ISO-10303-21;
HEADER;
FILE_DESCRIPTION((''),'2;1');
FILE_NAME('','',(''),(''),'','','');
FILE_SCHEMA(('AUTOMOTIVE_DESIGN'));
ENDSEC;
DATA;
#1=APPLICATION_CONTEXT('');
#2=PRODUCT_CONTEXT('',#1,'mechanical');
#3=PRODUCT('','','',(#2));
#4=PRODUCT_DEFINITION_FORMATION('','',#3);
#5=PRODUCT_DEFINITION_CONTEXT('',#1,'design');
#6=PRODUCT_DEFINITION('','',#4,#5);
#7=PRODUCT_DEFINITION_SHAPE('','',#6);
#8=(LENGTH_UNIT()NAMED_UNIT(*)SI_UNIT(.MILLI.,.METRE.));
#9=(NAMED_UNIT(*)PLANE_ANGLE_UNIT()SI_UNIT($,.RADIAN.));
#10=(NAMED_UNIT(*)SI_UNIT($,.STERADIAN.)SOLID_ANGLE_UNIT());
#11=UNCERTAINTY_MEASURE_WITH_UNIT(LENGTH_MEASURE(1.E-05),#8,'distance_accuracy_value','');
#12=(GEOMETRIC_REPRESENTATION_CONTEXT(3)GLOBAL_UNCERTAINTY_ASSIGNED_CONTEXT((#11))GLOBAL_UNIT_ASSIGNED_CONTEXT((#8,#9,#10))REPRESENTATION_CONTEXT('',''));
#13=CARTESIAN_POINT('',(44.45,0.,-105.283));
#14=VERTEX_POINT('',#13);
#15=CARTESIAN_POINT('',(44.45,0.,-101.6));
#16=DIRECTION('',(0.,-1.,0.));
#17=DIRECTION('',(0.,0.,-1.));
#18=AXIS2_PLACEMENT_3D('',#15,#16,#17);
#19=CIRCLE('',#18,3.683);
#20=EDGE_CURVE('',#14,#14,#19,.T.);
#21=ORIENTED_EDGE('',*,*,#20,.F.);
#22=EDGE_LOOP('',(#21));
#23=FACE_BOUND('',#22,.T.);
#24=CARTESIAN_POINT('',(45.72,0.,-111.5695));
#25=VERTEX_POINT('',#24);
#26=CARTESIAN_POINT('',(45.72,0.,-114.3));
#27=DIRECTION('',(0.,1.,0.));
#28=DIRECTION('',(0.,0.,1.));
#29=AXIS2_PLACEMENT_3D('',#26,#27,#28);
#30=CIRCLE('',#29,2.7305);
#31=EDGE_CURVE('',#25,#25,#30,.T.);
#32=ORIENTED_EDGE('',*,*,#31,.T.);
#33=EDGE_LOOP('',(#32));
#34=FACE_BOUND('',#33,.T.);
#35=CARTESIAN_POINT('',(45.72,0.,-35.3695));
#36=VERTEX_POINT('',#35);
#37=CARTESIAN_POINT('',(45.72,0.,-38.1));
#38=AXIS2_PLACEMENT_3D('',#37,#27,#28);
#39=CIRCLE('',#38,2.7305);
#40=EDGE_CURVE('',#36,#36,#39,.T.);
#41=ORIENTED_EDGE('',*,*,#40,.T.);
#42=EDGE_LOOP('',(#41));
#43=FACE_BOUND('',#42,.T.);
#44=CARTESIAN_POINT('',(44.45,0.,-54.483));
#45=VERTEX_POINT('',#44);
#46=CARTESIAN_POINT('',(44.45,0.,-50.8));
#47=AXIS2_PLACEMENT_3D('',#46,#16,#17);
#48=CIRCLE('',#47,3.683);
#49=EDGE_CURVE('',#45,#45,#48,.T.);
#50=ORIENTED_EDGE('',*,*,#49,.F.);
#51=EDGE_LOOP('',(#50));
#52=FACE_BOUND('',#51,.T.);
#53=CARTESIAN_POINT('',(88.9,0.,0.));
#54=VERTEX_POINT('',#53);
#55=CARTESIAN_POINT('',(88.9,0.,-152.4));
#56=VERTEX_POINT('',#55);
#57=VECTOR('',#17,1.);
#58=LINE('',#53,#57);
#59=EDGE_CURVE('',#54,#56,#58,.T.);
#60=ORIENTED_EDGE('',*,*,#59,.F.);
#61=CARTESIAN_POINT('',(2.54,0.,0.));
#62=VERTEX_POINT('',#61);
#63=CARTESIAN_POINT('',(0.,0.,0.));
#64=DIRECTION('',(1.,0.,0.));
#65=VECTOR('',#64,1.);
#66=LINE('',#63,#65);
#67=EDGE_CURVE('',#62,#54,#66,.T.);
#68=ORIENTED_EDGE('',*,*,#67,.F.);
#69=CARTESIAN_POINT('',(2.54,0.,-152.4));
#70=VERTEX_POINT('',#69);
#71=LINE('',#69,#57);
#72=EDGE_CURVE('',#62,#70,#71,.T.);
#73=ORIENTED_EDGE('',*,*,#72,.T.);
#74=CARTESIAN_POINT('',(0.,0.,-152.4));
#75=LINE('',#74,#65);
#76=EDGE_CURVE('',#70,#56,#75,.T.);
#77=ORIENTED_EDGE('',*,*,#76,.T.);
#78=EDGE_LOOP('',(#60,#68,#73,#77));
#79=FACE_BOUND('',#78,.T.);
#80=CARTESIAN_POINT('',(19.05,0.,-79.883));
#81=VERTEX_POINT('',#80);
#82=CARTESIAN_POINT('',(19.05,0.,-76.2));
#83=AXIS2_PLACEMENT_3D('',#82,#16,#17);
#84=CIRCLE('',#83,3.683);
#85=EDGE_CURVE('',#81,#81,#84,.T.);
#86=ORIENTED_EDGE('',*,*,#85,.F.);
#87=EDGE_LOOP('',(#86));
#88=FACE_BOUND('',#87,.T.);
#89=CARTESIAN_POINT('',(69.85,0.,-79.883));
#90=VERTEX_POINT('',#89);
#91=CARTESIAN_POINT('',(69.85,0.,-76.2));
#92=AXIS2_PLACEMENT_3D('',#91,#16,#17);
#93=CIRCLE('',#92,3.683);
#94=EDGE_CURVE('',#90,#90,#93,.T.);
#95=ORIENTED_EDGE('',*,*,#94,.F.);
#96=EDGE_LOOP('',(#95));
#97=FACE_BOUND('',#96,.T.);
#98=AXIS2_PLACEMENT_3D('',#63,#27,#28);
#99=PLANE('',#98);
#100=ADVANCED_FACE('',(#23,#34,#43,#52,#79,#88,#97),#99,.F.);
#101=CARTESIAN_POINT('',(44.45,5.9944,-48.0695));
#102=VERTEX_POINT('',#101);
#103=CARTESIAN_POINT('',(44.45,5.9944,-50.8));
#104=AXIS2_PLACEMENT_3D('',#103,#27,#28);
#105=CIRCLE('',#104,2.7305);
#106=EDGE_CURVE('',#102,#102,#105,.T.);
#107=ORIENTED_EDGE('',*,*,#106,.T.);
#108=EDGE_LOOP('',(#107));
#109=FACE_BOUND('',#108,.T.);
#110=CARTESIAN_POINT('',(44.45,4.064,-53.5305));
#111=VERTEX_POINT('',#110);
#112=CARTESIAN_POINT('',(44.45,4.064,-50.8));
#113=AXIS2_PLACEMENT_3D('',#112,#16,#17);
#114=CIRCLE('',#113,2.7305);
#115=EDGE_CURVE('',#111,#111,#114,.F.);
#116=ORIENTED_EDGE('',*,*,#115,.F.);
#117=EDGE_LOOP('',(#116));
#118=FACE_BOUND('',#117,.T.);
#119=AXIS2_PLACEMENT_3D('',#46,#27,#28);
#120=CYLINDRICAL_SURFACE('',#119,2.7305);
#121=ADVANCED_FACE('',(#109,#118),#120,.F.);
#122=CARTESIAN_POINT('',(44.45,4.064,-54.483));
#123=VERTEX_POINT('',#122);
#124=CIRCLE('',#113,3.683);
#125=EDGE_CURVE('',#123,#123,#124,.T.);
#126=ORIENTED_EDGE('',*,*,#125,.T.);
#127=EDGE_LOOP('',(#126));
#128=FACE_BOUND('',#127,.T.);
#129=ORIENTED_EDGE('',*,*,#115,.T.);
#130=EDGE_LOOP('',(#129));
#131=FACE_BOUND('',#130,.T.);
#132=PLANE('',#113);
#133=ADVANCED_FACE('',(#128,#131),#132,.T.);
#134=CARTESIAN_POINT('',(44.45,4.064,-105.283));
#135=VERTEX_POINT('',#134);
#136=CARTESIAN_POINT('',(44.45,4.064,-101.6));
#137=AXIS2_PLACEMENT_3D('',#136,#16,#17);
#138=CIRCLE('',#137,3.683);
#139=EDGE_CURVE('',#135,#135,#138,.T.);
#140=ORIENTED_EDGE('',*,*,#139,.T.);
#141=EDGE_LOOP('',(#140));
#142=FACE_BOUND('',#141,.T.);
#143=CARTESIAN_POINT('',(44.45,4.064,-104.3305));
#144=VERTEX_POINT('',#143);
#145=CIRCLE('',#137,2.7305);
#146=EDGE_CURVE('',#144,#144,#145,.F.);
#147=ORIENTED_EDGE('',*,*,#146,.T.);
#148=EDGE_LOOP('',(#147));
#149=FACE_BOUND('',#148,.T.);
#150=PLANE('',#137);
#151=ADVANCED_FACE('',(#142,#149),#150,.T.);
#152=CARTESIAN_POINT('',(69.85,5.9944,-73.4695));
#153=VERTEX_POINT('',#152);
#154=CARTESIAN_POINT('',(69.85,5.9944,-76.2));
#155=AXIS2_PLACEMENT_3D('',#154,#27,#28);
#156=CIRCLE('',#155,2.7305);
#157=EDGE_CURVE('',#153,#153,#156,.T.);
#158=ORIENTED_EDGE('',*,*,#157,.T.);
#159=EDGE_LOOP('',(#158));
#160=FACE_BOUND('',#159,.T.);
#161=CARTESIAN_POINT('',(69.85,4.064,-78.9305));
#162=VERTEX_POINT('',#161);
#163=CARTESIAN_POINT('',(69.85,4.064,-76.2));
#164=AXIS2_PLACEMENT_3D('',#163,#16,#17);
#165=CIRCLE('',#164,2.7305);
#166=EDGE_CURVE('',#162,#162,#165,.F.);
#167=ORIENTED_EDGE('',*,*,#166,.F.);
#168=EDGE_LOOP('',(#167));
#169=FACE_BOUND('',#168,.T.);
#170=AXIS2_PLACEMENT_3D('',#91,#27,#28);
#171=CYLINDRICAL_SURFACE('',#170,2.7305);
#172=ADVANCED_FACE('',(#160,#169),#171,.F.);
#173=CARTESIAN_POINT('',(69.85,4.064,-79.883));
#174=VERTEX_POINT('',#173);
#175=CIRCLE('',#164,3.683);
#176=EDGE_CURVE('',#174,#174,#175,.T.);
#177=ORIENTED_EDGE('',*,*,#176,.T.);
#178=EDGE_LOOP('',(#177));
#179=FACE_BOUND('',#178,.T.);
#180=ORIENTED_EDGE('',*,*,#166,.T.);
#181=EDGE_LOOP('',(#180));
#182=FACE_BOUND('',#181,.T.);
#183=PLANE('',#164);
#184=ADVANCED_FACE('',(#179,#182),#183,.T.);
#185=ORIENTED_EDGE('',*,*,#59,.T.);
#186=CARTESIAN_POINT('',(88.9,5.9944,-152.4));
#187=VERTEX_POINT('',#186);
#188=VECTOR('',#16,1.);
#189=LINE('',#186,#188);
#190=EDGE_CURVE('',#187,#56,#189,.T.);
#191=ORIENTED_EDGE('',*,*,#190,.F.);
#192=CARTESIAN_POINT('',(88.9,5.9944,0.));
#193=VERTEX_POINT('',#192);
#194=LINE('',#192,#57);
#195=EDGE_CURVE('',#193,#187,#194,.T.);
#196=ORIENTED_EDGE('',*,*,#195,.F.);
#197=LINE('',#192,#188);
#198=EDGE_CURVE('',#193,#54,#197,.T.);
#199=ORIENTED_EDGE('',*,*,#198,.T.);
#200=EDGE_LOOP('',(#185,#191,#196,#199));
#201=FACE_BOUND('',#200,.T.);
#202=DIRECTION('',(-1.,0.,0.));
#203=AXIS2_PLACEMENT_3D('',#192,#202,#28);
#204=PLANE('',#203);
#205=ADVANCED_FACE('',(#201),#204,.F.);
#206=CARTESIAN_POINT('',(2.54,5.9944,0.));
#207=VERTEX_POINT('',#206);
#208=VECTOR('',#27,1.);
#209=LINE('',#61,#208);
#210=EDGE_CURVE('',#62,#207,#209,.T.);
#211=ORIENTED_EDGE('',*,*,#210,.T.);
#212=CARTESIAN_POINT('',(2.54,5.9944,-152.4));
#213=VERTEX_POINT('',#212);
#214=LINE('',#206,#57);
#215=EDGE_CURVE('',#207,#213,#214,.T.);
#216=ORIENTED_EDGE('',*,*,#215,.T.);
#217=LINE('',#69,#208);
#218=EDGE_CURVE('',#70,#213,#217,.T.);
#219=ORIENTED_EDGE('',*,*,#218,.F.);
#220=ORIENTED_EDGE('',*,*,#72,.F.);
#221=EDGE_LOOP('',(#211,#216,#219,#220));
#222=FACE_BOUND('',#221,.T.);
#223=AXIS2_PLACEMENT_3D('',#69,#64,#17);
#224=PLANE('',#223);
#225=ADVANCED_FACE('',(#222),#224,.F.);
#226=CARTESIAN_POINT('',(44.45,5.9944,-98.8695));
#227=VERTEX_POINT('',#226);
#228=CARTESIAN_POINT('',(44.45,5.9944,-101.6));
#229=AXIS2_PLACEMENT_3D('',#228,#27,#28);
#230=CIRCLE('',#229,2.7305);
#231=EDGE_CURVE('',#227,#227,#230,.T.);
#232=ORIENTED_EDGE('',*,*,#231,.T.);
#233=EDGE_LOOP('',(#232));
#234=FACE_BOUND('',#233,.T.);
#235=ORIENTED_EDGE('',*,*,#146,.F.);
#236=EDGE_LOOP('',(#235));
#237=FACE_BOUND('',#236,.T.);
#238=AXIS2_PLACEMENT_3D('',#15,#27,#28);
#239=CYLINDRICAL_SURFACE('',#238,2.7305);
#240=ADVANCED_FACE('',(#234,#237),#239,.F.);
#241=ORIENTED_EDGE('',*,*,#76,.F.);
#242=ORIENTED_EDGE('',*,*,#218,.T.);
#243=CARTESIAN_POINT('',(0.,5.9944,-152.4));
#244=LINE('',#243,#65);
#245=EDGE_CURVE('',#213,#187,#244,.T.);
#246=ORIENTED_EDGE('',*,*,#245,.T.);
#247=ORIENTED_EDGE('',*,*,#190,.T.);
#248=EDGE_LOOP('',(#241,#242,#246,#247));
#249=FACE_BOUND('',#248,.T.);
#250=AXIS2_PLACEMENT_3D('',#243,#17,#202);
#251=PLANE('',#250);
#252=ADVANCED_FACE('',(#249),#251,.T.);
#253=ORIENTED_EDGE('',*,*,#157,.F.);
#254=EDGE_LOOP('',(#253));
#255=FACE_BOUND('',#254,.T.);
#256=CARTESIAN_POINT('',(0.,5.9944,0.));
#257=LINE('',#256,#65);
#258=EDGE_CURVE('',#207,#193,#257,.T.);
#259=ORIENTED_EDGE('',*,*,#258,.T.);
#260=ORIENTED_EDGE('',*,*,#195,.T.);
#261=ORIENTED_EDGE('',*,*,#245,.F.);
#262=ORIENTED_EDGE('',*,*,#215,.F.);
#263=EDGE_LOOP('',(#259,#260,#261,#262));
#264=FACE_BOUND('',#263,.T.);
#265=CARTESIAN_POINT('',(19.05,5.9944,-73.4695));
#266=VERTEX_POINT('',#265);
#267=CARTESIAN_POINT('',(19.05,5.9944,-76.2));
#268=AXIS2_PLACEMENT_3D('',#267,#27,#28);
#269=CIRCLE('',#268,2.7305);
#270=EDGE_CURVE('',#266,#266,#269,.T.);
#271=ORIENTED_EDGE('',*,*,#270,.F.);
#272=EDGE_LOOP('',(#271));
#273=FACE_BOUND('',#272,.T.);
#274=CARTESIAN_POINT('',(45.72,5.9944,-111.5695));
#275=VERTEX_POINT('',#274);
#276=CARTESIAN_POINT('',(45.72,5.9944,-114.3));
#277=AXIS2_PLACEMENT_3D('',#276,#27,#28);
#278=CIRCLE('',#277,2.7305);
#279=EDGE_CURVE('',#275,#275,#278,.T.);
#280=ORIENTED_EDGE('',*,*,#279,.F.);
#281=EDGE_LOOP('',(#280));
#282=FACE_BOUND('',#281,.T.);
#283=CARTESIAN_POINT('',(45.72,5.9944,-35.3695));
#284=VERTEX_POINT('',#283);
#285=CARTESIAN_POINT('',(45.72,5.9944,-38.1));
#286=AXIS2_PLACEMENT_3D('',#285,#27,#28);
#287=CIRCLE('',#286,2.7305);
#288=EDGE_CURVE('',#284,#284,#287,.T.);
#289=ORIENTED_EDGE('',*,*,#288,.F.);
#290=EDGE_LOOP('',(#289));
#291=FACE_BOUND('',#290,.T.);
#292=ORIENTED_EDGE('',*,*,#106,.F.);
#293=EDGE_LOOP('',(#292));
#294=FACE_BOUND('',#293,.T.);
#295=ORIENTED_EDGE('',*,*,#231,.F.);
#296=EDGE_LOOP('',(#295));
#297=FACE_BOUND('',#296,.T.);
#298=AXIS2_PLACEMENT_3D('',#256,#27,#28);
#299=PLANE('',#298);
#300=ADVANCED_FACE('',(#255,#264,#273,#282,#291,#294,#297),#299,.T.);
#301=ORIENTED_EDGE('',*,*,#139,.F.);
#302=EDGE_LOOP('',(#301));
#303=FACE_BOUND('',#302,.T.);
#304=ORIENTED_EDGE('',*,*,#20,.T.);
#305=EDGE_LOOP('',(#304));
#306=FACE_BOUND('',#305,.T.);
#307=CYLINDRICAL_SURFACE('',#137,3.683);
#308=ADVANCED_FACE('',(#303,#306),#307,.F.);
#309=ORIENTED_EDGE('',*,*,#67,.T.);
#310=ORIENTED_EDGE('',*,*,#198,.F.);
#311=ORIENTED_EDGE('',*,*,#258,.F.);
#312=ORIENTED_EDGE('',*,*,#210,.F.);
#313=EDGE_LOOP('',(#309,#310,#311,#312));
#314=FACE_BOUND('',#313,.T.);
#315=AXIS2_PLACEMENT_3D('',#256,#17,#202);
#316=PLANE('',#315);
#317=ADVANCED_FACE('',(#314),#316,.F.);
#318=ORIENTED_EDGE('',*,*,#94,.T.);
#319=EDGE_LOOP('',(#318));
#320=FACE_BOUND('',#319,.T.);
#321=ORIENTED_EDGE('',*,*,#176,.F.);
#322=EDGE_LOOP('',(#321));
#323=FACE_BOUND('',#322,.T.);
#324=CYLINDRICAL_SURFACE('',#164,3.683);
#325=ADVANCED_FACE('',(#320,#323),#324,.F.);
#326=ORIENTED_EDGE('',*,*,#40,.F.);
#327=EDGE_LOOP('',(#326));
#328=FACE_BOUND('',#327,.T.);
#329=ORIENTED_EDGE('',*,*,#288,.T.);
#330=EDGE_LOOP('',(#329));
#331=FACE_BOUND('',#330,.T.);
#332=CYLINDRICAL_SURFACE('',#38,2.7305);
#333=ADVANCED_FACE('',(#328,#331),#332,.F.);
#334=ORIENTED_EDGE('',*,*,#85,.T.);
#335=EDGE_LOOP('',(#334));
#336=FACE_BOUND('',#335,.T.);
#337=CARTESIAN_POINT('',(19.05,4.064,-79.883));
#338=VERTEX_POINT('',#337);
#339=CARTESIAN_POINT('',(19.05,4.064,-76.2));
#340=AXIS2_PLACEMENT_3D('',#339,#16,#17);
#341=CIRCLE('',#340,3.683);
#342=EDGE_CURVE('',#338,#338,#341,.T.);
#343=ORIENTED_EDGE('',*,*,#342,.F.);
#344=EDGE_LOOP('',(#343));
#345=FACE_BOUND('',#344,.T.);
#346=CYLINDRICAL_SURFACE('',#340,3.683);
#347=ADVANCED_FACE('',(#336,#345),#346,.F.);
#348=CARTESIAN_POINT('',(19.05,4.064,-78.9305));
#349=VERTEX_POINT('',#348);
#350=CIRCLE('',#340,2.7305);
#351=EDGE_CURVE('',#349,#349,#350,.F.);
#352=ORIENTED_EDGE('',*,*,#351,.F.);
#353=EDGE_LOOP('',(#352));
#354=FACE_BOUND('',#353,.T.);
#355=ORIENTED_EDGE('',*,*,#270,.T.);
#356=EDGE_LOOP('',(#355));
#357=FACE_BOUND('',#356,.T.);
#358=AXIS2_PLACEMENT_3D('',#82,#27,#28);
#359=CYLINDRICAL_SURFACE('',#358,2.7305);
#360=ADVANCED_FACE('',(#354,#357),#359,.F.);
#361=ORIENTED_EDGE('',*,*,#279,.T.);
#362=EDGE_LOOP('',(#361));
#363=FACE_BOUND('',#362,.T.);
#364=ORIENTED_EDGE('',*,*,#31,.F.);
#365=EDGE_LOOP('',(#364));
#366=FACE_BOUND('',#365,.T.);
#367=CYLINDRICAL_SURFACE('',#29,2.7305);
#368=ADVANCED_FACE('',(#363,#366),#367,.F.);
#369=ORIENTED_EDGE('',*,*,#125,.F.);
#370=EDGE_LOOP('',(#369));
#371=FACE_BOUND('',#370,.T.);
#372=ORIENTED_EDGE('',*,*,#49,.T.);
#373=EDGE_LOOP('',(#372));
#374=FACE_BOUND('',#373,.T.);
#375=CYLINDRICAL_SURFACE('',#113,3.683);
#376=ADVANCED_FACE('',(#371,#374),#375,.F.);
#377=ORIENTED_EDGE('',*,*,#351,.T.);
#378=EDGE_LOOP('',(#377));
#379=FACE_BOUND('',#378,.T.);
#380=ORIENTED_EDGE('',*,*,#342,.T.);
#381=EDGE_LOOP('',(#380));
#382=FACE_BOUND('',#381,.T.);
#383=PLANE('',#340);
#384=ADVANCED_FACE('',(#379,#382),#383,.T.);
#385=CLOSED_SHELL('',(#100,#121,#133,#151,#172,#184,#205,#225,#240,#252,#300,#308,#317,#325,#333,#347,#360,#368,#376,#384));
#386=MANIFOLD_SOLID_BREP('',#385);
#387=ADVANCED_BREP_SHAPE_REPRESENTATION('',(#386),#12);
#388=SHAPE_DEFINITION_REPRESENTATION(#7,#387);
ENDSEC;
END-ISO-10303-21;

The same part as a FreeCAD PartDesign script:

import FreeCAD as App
import Part
import Sketcher
from FreeCAD import Vector
Q = App.Units.Quantity


def add_polygon(sketch, points):
    """Adds a closed chain of lines whose ends are joined by coincident constraints."""
    first, n = sketch.GeometryCount, len(points)
    for a, b in zip(points, points[1:] + points[:1]):
        sketch.addGeometry(Part.LineSegment(App.Vector(*a, 0), App.Vector(*b, 0)), False)
    for i in range(n):
        sketch.addConstraint(Sketcher.Constraint("Coincident", first + i, 2, first + (i + 1) % n, 1))

doc = App.newDocument("Part")
params = doc.addObject("Spreadsheet::Sheet", "Params")
for row, (alias, value) in enumerate([
    ("sketch1_height", "6 in"),
    ("sketch1_width", "3.5 in"),
    ("pad1_length", "0.236 in"),
    ("sketch2_diameter", "0.215 in"),
    ("sketch3_diameter", "0.215 in"),
    ("sketch4_height", "6 in"),
    ("sketch4_width", "0.1 in"),
    ("sketch5_diameter", "0.29 in"),
    ("pocket4_length", "0.16 in"),
], start=1):
    params.set(f"A{row}", alias)
    params.set(f"B{row}", "=" + value)
    params.setAlias(f"B{row}", alias)

body = doc.addObject("PartDesign::Body", "Body")

# Sketch on XZ plane
sketch1 = body.newObject("Sketcher::SketchObject", "Sketch")
sketch1.AttachmentSupport = (doc.getObject("XZ_Plane"), [""])
sketch1.MapMode = "FlatFace"
add_polygon(sketch1, [(0, -152), (0, 0), (89, 0), (89, -152)])  # lines 0-3
sketch1.addConstraint(Sketcher.Constraint("Vertical", 0))
sketch1.addConstraint(Sketcher.Constraint("Horizontal", 1))
sketch1.addConstraint(Sketcher.Constraint("Vertical", 2))
sketch1.addConstraint(Sketcher.Constraint("Horizontal", 3))
sketch1.addConstraint(Sketcher.Constraint("Coincident", 0, 2, -1, 1))
sketch1.addConstraint(Sketcher.Constraint("DistanceY", 0, 1, 0, 2, Q("6 in")))
sketch1.addConstraint(Sketcher.Constraint("DistanceX", 1, 1, 1, 2, Q("3.5 in")))
sketch1.setExpression("Constraints[9]", "Params.sketch1_height")
sketch1.setExpression("Constraints[10]", "Params.sketch1_width")
pad1 = body.newObject("PartDesign::Pad", "Pad")
pad1.Profile = sketch1
pad1.setExpression("Length", "Params.pad1_length")
pad1.Reversed = True

# Sketch on XZ plane
sketch2 = body.newObject("Sketcher::SketchObject", "Sketch001")
sketch2.AttachmentSupport = (doc.getObject("XZ_Plane"), [""])
sketch2.MapMode = "FlatFace"
sketch2.AttachmentOffset = App.Placement(Vector(0, 0, -0.236 * 25.4), App.Rotation())
sketch2.addGeometry(Part.Circle(Vector(45.7, -114.3, 0), Vector(0, 0, 1), 2.7), False)
sketch2.addGeometry(Part.Circle(Vector(45.7, -38.1, 0), Vector(0, 0, 1), 2.7), False)
sketch2.addConstraint(Sketcher.Constraint("Equal", 0, 1))
sketch2.addConstraint(Sketcher.Constraint("Vertical", 0, 3, 1, 3))
sketch2.addConstraint(Sketcher.Constraint("Diameter", 0, Q("0.215 in")))
sketch2.addConstraint(Sketcher.Constraint("DistanceY", 0, 3, 1, 3, Q("3 in")))
sketch2.addConstraint(Sketcher.Constraint("DistanceX", -1, 1, 0, 3, Q("1.8 in")))
sketch2.addConstraint(Sketcher.Constraint("DistanceY", 0, 3, -1, 1, Q("4.5 in")))
sketch2.setExpression("Constraints[2]", "Params.sketch2_diameter")
pocket1 = body.newObject("PartDesign::Pocket", "Pocket")
pocket1.Profile = sketch2
pocket1.Type = "ThroughAll"
pocket1.Midplane = True

# Sketch on XZ plane
sketch3 = body.newObject("Sketcher::SketchObject", "Sketch002")
sketch3.AttachmentSupport = (doc.getObject("XZ_Plane"), [""])
sketch3.MapMode = "FlatFace"
sketch3.AttachmentOffset = App.Placement(Vector(0, 0, -0.236 * 25.4), App.Rotation())
sketch3.addGeometry(Part.Circle(Vector(69.8, -76.2, 0), Vector(0, 0, 1), 2.7), False)
sketch3.addGeometry(Part.Circle(Vector(19.1, -76.2, 0), Vector(0, 0, 1), 2.7), False)
sketch3.addGeometry(Part.Circle(Vector(44.5, -101.6, 0), Vector(0, 0, 1), 2.7), False)
sketch3.addGeometry(Part.Circle(Vector(44.5, -50.8, 0), Vector(0, 0, 1), 2.7), False)
sketch3.addConstraint(Sketcher.Constraint("Equal", 0, 1))
sketch3.addConstraint(Sketcher.Constraint("Equal", 1, 2))
sketch3.addConstraint(Sketcher.Constraint("Equal", 2, 3))
sketch3.addConstraint(Sketcher.Constraint("Horizontal", 0, 3, 1, 3))
sketch3.addConstraint(Sketcher.Constraint("Vertical", 2, 3, 3, 3))
sketch3.addConstraint(Sketcher.Constraint("Diameter", 0, Q("0.215 in")))
sketch3.addConstraint(Sketcher.Constraint("DistanceY", 0, 3, -1, 1, Q("3 in")))
sketch3.addConstraint(Sketcher.Constraint("DistanceY", 2, 3, -1, 1, Q("4 in")))
sketch3.addConstraint(Sketcher.Constraint("DistanceY", 3, 3, -1, 1, Q("2 in")))
sketch3.addConstraint(Sketcher.Constraint("DistanceX", 1, 3, 0, 3, Q("2 in")))
sketch3.addConstraint(Sketcher.Constraint("DistanceX", 2, 3, 0, 3, Q("1 in")))
sketch3.addConstraint(Sketcher.Constraint("DistanceX", -1, 1, 0, 3, Q("2.75 in")))
sketch3.setExpression("Constraints[5]", "Params.sketch3_diameter")
pocket2 = body.newObject("PartDesign::Pocket", "Pocket001")
pocket2.Profile = sketch3
pocket2.Type = "ThroughAll"
pocket2.Midplane = True

# Sketch on XZ plane
sketch4 = body.newObject("Sketcher::SketchObject", "Sketch003")
sketch4.AttachmentSupport = (doc.getObject("XZ_Plane"), [""])
sketch4.MapMode = "FlatFace"
sketch4.AttachmentOffset = App.Placement(Vector(0, 0, -0.236 * 25.4), App.Rotation())
add_polygon(sketch4, [(0, -152.4), (0, 0), (2.5, 0), (2.5, -152.4)])  # lines 0-3
sketch4.addConstraint(Sketcher.Constraint("Vertical", 0))
sketch4.addConstraint(Sketcher.Constraint("Horizontal", 1))
sketch4.addConstraint(Sketcher.Constraint("Vertical", 2))
sketch4.addConstraint(Sketcher.Constraint("Horizontal", 3))
sketch4.addConstraint(Sketcher.Constraint("Coincident", 0, 2, -1, 1))
sketch4.addConstraint(Sketcher.Constraint("DistanceY", 0, 1, 0, 2, Q("6 in")))
sketch4.addConstraint(Sketcher.Constraint("DistanceX", 1, 1, 1, 2, Q("0.1 in")))
sketch4.setExpression("Constraints[9]", "Params.sketch4_height")
sketch4.setExpression("Constraints[10]", "Params.sketch4_width")
pocket3 = body.newObject("PartDesign::Pocket", "Pocket002")
pocket3.Profile = sketch4
pocket3.Type = "ThroughAll"
pocket3.Midplane = True

# Sketch on XZ plane
sketch5 = body.newObject("Sketcher::SketchObject", "Sketch004")
sketch5.AttachmentSupport = (doc.getObject("XZ_Plane"), [""])
sketch5.MapMode = "FlatFace"
sketch5.addGeometry(Part.Circle(Vector(19.1, -76.2, 0), Vector(0, 0, 1), 3.7), False)
sketch5.addGeometry(Part.Circle(Vector(44.5, -50.8, 0), Vector(0, 0, 1), 3.7), False)
sketch5.addGeometry(Part.Circle(Vector(69.8, -76.2, 0), Vector(0, 0, 1), 3.7), False)
sketch5.addGeometry(Part.Circle(Vector(44.5, -101.6, 0), Vector(0, 0, 1), 3.7), False)
sketch5.addConstraint(Sketcher.Constraint("Equal", 0, 1))
sketch5.addConstraint(Sketcher.Constraint("Equal", 1, 2))
sketch5.addConstraint(Sketcher.Constraint("Equal", 2, 3))
sketch5.addConstraint(Sketcher.Constraint("Horizontal", 0, 3, 2, 3))
sketch5.addConstraint(Sketcher.Constraint("Vertical", 1, 3, 3, 3))
sketch5.addConstraint(Sketcher.Constraint("Diameter", 0, Q("0.29 in")))
sketch5.addConstraint(Sketcher.Constraint("DistanceY", 0, 3, -1, 1, Q("3 in")))
sketch5.addConstraint(Sketcher.Constraint("DistanceY", 1, 3, -1, 1, Q("2 in")))
sketch5.addConstraint(Sketcher.Constraint("DistanceY", 3, 3, -1, 1, Q("4 in")))
sketch5.addConstraint(Sketcher.Constraint("DistanceX", 0, 3, 1, 3, Q("1 in")))
sketch5.addConstraint(Sketcher.Constraint("DistanceX", 1, 3, 2, 3, Q("1 in")))
sketch5.addConstraint(Sketcher.Constraint("DistanceX", -1, 1, 0, 3, Q("0.75 in")))
sketch5.setExpression("Constraints[5]", "Params.sketch5_diameter")
pocket4 = body.newObject("PartDesign::Pocket", "Pocket003")
pocket4.Profile = sketch5
pocket4.setExpression("Length", "Params.pocket4_length")

doc.recompute()
